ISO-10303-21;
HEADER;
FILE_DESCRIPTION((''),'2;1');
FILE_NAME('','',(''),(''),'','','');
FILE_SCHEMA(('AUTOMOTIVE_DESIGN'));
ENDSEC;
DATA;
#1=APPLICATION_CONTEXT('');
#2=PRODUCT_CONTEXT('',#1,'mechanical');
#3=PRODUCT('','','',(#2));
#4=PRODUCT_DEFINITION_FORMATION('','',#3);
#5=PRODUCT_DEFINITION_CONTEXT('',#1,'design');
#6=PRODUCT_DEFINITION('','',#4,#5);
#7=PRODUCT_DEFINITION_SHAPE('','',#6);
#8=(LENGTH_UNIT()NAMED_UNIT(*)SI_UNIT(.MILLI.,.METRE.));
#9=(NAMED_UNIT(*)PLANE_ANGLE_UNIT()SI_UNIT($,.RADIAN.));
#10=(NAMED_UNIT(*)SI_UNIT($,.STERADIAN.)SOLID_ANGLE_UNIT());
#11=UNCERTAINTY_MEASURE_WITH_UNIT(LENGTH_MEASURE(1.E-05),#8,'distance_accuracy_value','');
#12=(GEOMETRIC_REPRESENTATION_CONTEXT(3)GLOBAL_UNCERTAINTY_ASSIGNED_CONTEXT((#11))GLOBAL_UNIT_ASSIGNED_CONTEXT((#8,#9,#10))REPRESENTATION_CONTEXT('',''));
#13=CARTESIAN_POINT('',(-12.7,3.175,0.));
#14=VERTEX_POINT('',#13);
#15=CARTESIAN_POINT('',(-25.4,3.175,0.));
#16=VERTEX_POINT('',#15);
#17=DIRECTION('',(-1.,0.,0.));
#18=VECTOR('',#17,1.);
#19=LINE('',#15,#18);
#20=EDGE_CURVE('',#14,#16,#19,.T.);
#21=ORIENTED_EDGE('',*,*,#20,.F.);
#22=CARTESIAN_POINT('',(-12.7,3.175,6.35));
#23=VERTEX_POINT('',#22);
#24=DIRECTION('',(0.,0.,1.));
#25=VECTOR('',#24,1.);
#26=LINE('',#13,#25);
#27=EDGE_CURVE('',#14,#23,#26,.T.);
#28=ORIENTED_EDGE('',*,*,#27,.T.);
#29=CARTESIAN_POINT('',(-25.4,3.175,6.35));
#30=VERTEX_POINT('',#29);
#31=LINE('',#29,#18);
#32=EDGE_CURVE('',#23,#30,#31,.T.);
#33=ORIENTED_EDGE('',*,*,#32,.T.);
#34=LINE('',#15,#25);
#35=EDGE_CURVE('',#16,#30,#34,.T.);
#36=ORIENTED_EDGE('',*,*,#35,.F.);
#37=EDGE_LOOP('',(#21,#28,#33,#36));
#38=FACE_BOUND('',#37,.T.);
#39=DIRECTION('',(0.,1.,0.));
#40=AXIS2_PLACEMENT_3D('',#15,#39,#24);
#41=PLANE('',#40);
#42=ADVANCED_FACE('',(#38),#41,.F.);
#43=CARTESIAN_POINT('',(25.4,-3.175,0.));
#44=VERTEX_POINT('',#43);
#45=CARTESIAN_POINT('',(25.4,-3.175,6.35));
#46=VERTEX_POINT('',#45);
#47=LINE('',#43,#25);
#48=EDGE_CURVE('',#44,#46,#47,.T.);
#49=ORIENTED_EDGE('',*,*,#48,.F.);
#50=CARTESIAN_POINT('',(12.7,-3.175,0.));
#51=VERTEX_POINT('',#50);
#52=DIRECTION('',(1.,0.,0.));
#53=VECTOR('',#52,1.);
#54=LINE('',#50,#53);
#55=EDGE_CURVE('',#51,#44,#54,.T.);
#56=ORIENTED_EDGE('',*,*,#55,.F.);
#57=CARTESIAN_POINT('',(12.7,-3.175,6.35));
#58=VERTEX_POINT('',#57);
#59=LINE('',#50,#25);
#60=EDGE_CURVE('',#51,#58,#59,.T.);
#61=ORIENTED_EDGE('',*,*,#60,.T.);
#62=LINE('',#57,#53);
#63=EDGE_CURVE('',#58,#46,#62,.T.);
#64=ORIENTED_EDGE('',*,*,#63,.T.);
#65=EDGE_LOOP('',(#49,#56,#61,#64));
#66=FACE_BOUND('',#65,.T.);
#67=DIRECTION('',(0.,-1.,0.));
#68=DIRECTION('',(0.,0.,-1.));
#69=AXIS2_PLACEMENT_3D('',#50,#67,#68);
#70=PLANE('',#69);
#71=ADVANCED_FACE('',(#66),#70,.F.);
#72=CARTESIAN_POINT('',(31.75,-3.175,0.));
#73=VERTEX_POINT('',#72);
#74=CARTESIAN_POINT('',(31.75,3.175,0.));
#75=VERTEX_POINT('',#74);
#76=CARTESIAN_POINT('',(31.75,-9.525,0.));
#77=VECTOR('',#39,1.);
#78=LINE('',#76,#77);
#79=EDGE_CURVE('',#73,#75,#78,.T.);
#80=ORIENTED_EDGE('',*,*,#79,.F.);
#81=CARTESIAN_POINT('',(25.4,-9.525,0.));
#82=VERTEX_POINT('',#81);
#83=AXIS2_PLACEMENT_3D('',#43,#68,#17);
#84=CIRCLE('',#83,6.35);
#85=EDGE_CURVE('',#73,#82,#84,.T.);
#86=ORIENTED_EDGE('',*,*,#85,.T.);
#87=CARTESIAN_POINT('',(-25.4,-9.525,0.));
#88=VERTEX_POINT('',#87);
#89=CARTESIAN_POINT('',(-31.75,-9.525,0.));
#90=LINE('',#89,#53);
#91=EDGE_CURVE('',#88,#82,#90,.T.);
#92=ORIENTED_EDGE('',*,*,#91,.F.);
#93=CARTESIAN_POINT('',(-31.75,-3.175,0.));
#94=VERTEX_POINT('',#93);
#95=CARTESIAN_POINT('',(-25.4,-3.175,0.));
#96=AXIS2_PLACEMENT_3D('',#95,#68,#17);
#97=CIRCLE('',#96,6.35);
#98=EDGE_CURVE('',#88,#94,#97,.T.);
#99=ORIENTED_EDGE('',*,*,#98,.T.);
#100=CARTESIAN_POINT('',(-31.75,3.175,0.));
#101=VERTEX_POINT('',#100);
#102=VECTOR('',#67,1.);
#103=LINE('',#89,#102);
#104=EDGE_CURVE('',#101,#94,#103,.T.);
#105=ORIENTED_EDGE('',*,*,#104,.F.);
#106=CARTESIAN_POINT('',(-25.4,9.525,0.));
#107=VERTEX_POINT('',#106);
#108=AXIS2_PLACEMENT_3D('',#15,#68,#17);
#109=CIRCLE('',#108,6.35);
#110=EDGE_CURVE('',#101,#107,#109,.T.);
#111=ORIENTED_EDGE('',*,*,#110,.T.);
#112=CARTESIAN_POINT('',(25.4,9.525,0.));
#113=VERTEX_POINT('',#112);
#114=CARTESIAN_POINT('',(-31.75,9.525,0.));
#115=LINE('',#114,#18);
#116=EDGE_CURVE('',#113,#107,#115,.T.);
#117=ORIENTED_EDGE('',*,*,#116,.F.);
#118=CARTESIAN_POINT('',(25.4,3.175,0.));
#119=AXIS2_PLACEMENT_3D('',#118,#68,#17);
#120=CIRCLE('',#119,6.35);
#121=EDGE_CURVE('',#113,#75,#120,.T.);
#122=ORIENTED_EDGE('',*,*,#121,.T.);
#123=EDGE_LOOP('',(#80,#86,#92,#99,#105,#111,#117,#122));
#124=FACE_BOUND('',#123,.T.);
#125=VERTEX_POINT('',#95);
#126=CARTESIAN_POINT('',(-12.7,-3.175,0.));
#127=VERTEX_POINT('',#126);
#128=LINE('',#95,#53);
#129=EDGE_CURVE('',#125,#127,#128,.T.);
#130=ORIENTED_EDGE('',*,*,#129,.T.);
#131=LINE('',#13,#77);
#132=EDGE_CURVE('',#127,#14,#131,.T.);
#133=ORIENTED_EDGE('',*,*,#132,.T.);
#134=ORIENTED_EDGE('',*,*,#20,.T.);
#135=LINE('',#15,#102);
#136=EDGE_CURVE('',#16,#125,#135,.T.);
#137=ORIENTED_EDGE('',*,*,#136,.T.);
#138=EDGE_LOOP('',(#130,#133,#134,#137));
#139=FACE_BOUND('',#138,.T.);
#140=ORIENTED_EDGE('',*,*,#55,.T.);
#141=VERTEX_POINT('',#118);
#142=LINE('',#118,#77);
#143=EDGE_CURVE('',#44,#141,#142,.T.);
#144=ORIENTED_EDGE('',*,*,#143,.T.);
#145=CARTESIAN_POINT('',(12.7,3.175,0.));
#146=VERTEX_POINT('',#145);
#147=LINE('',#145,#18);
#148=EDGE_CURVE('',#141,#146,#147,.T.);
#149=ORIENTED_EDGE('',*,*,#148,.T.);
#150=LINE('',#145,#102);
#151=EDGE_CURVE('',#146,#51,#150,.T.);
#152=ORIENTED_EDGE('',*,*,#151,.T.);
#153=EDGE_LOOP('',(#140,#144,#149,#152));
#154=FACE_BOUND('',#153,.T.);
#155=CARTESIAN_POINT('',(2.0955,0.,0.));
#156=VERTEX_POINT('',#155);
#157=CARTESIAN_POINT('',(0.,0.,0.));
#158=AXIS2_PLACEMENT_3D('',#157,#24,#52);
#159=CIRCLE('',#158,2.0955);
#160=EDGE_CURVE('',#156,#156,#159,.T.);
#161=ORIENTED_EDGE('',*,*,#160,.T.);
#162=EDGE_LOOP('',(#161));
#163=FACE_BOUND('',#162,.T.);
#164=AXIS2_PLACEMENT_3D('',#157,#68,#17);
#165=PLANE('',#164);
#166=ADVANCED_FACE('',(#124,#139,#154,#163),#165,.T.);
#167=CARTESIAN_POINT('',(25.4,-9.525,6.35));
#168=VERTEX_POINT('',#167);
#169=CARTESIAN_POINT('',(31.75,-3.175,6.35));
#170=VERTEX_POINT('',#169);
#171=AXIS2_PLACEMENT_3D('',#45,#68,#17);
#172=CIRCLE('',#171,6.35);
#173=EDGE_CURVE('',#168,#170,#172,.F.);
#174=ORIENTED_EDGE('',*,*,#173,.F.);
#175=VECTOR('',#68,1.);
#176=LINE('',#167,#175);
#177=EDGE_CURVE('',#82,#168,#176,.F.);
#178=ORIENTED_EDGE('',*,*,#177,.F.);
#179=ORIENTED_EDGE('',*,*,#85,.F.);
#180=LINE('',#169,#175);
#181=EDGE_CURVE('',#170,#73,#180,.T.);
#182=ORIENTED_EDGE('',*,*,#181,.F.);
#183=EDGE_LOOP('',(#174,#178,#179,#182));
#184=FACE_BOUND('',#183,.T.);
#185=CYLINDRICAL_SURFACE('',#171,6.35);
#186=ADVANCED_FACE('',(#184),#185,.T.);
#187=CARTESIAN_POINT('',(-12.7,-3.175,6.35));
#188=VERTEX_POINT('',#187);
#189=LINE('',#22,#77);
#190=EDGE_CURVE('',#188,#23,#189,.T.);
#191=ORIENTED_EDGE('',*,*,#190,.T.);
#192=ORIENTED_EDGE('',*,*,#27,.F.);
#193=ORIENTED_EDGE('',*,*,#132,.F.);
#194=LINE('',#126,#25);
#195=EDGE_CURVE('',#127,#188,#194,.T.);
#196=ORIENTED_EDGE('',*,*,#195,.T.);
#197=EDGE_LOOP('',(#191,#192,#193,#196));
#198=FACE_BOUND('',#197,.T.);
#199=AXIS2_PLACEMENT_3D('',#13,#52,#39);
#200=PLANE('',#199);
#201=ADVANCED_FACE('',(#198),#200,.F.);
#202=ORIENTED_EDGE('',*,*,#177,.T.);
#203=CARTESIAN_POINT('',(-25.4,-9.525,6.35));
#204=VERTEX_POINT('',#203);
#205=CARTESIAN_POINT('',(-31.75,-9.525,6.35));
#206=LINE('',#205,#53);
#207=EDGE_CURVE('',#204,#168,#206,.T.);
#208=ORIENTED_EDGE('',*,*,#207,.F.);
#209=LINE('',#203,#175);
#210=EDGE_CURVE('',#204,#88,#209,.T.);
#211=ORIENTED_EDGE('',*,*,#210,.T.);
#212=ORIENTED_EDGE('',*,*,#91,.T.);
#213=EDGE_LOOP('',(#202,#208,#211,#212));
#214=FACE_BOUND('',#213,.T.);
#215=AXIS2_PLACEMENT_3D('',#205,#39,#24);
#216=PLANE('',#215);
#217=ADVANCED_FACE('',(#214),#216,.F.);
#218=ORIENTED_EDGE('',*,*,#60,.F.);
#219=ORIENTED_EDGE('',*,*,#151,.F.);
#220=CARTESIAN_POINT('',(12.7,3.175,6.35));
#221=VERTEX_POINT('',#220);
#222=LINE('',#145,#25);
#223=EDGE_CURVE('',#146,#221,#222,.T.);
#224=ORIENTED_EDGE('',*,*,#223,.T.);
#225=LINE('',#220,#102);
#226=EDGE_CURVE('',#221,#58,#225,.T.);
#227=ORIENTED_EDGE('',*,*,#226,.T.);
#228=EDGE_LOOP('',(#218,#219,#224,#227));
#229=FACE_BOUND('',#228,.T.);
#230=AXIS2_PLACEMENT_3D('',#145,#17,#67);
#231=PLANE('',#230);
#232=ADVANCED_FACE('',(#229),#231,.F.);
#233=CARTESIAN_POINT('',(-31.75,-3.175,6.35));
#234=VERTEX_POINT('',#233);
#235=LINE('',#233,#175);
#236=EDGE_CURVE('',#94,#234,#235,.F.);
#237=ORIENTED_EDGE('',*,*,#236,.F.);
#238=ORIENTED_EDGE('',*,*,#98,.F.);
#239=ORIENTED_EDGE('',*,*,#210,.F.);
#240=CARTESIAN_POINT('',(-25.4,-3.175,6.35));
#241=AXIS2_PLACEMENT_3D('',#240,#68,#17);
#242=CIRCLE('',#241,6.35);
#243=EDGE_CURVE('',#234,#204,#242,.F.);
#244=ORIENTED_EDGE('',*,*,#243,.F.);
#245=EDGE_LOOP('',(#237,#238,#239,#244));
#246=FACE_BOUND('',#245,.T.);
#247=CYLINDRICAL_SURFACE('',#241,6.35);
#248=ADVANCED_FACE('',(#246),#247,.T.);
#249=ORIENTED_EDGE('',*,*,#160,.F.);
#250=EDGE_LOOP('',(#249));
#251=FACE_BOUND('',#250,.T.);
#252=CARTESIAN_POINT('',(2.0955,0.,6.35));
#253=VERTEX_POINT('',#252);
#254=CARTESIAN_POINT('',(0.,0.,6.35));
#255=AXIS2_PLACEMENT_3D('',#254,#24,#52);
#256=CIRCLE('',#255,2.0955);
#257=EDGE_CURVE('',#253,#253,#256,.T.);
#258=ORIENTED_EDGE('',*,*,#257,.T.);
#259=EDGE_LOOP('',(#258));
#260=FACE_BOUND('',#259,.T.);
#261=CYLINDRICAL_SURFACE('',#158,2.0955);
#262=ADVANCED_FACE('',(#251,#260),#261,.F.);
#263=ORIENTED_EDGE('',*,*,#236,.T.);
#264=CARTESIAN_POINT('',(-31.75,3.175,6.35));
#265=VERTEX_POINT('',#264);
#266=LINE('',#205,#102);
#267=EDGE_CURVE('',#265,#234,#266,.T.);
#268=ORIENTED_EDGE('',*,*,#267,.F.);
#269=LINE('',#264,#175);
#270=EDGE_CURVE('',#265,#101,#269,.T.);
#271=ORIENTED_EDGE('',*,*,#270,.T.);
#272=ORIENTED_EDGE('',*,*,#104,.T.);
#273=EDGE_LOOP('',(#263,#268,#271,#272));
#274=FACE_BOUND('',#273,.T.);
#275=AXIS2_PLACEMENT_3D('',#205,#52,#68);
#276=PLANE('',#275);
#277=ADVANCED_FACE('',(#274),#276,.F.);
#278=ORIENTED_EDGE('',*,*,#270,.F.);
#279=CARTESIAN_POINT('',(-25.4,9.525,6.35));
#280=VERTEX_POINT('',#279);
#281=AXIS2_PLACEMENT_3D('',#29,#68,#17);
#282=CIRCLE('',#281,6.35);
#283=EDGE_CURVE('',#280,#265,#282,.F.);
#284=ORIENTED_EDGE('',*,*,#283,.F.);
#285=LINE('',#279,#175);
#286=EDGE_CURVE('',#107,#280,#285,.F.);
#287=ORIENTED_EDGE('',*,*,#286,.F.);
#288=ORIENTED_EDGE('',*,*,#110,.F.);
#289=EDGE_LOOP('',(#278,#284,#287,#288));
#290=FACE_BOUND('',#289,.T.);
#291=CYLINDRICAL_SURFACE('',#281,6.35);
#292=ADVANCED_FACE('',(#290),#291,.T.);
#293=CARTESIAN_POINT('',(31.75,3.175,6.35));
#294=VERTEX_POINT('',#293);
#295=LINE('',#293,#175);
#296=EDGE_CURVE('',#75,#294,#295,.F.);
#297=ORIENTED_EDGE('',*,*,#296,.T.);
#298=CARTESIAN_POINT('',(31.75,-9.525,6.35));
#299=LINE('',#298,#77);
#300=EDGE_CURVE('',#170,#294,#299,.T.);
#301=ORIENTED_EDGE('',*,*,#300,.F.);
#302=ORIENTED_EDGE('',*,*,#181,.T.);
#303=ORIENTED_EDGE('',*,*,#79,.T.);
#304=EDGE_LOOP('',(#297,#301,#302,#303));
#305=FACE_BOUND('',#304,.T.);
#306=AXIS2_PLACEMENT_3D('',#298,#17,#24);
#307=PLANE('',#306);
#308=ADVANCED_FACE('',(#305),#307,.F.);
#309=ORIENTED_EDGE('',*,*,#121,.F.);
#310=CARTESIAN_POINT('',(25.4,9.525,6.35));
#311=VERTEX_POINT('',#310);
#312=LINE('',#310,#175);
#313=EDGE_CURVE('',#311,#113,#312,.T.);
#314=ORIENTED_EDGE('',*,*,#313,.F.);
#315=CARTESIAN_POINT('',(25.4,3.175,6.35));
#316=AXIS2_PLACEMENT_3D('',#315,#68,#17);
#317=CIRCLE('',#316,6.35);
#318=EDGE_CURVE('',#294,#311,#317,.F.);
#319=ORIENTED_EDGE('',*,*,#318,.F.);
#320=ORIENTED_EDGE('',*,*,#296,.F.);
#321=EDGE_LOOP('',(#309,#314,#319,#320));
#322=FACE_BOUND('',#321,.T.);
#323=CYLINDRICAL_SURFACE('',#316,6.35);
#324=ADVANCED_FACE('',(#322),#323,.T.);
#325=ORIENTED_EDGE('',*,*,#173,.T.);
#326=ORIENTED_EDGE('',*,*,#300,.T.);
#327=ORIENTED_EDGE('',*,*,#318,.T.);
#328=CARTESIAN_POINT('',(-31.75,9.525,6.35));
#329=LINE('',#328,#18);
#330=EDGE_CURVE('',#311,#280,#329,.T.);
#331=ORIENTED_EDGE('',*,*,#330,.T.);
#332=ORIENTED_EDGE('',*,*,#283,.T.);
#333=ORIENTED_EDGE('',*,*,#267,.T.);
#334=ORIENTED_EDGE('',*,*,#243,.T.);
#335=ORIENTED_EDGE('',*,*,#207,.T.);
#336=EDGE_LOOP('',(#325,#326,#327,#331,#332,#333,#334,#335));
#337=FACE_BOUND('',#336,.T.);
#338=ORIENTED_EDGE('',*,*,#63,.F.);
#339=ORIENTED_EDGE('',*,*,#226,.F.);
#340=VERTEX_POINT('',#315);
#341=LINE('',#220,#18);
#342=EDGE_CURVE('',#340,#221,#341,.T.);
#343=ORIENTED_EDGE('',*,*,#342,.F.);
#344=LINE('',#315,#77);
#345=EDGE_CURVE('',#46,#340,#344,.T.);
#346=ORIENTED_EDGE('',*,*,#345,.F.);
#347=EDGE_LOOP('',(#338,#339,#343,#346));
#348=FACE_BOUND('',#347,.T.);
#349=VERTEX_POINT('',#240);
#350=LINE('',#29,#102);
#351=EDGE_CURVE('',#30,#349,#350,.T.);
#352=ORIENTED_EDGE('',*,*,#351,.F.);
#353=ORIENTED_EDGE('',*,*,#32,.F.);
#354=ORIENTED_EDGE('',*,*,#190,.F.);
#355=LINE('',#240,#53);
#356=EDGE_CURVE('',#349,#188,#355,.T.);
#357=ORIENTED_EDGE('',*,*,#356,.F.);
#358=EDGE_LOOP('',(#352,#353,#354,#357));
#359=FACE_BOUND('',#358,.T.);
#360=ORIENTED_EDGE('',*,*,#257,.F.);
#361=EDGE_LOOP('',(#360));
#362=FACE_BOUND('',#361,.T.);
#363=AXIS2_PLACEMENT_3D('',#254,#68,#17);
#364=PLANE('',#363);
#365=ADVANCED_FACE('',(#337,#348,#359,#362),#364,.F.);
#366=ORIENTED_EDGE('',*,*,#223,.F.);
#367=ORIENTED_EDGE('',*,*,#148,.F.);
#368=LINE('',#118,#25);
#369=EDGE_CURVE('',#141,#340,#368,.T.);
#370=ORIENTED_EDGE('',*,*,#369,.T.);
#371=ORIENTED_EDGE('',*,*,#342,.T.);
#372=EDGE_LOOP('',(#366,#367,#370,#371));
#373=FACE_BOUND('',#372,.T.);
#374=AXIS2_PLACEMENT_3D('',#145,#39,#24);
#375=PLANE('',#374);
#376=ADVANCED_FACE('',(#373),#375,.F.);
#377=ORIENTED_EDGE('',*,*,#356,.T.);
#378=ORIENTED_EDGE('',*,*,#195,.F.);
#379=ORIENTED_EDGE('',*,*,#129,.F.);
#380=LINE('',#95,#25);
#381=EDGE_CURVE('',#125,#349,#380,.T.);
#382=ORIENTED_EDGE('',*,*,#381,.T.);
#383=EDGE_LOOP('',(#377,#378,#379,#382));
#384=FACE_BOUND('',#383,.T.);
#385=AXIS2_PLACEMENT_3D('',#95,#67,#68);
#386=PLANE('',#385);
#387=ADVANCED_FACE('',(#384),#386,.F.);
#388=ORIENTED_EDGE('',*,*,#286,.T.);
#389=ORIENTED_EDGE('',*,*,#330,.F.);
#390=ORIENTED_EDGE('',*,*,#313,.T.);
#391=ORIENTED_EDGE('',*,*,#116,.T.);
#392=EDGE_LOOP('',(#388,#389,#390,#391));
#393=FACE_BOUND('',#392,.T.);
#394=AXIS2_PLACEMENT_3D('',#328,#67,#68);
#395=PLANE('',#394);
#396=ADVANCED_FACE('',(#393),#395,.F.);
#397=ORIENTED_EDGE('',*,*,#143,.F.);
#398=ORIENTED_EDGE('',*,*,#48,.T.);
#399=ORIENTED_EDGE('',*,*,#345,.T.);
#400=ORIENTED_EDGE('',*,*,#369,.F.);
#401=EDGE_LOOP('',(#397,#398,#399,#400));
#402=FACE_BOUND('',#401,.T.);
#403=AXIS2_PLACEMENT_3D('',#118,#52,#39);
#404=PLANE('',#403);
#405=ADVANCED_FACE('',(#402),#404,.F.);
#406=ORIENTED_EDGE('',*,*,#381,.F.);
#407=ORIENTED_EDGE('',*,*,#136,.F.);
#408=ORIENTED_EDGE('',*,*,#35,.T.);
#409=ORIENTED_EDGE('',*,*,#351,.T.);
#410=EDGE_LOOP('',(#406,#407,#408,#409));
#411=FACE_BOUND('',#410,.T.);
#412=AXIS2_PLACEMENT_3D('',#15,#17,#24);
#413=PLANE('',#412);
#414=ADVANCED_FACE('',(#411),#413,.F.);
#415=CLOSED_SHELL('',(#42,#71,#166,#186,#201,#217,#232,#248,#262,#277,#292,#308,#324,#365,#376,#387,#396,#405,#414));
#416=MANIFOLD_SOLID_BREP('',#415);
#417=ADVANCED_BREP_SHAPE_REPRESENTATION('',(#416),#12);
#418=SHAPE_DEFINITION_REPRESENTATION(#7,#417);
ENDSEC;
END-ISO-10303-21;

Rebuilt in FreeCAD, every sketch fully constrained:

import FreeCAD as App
import Part
import Sketcher
from FreeCAD import Vector
Q = App.Units.Quantity


def edges_at(feature, points):
    """Names of the edges that pass closest to the given points."""
    edges = feature.Shape.Edges
    near = lambda p: min(range(len(edges)), key=lambda i: edges[i].distToShape(Part.Vertex(*p))[0])
    return sorted({f"Edge{near(p) + 1}" for p in points})

doc = App.newDocument("Part")
body = doc.addObject("PartDesign::Body", "Body")

# Sketch on XY plane
sketch1 = body.newObject("Sketcher::SketchObject", "Sketch")
sketch1.AttachmentSupport = (doc.getObject("XY_Plane"), [""])
sketch1.MapMode = "FlatFace"
sketch1.addGeometry([
    Part.LineSegment(Vector(-32, 10, 0), Vector(-32, -10, 0)),
    Part.LineSegment(Vector(-32, -10, 0), Vector(32, -10, 0)),
    Part.LineSegment(Vector(32, -10, 0), Vector(32, 10, 0)),
    Part.LineSegment(Vector(32, 10, 0), Vector(-32, 10, 0)),
], False)
sketch1.addConstraint([
    Sketcher.Constraint("Coincident", 0, 2, 1, 1),
    Sketcher.Constraint("Coincident", 1, 2, 2, 1),
    Sketcher.Constraint("Coincident", 2, 2, 3, 1),
    Sketcher.Constraint("Coincident", 3, 2, 0, 1),
    Sketcher.Constraint("Vertical", 0),
    Sketcher.Constraint("Horizontal", 1),
    Sketcher.Constraint("Vertical", 2),
    Sketcher.Constraint("Horizontal", 3),
    Sketcher.Constraint("Symmetric", 0, 2, 2, 2, -1, 1),
    Sketcher.Constraint("DistanceX", 1, 1, 1, 2, Q("2.5 in")),
    Sketcher.Constraint("DistanceY", 0, 2, 0, 1, Q("0.75 in")),
])
pad1 = body.newObject("PartDesign::Pad", "Pad")
pad1.Profile = sketch1
pad1.Length = Q("0.25 in")

# Sketch on XY plane
sketch2 = body.newObject("Sketcher::SketchObject", "Sketch001")
sketch2.AttachmentSupport = (doc.getObject("XY_Plane"), [""])
sketch2.MapMode = "FlatFace"
sketch2.AttachmentOffset = App.Placement(Vector(0, 0, 0.25 * 25.4), App.Rotation())
sketch2.addGeometry([
    Part.Circle(Vector(0, 0, 0), Vector(0, 0, 1), 2.1),  # 0
    Part.LineSegment(Vector(-25.4, 3.2, 0), Vector(-25.4, -3.2, 0)),  # 1
    Part.LineSegment(Vector(-25.4, -3.2, 0), Vector(-12.7, -3.2, 0)),  # 2
    Part.LineSegment(Vector(-12.7, -3.2, 0), Vector(-12.7, 3.2, 0)),  # 3
    Part.LineSegment(Vector(-12.7, 3.2, 0), Vector(-25.4, 3.2, 0)),  # 4
    Part.LineSegment(Vector(12.7, 3.2, 0), Vector(12.7, -3.2, 0)),  # 5
    Part.LineSegment(Vector(12.7, -3.2, 0), Vector(25.4, -3.2, 0)),  # 6
    Part.LineSegment(Vector(25.4, -3.2, 0), Vector(25.4, 3.2, 0)),  # 7
    Part.LineSegment(Vector(25.4, 3.2, 0), Vector(12.7, 3.2, 0)),  # 8
], False)
sketch2.addConstraint([
    Sketcher.Constraint("Coincident", 1, 2, 2, 1),
    Sketcher.Constraint("Coincident", 2, 2, 3, 1),
    Sketcher.Constraint("Coincident", 3, 2, 4, 1),
    Sketcher.Constraint("Coincident", 4, 2, 1, 1),
    Sketcher.Constraint("Coincident", 5, 2, 6, 1),
    Sketcher.Constraint("Coincident", 6, 2, 7, 1),
    Sketcher.Constraint("Coincident", 7, 2, 8, 1),
    Sketcher.Constraint("Coincident", 8, 2, 5, 1),
    Sketcher.Constraint("Vertical", 1),
    Sketcher.Constraint("Horizontal", 2),
    Sketcher.Constraint("Vertical", 3),
    Sketcher.Constraint("Horizontal", 4),
    Sketcher.Constraint("Vertical", 5),
    Sketcher.Constraint("Horizontal", 6),
    Sketcher.Constraint("Vertical", 7),
    Sketcher.Constraint("Horizontal", 8),
    Sketcher.Constraint("Coincident", 0, 3, -1, 1),
    Sketcher.Constraint("Symmetric", 3, 2, 5, 2, -1, 1),
    Sketcher.Constraint("Symmetric", 1, 2, 7, 2, -1, 1),
    Sketcher.Constraint("Horizontal", 2, 2, 5, 2),
    Sketcher.Constraint("Diameter", 0, Q("0.165 in")),
    Sketcher.Constraint("DistanceX", 2, 1, 2, 2, Q("0.5 in")),
    Sketcher.Constraint("DistanceX", 1, 2, -1, 1, Q("1 in")),
    Sketcher.Constraint("DistanceY", 1, 2, 1, 1, Q("0.25 in")),
])
pocket1 = body.newObject("PartDesign::Pocket", "Pocket")
pocket1.Profile = sketch2
pocket1.Length = Q("0.25 in")
doc.recompute()

fillet = body.newObject("PartDesign::Fillet", "Fillet")
fillet.Base = (pocket1, edges_at(pocket1, [
    (31.75, -9.525, 3.175),
    (-31.75, -9.525, 3.175),
    (-31.75, 9.525, 3.175),
    (31.75, 9.525, 3.175),
]))
fillet.Radius = Q("0.25 in")

doc.recompute()
